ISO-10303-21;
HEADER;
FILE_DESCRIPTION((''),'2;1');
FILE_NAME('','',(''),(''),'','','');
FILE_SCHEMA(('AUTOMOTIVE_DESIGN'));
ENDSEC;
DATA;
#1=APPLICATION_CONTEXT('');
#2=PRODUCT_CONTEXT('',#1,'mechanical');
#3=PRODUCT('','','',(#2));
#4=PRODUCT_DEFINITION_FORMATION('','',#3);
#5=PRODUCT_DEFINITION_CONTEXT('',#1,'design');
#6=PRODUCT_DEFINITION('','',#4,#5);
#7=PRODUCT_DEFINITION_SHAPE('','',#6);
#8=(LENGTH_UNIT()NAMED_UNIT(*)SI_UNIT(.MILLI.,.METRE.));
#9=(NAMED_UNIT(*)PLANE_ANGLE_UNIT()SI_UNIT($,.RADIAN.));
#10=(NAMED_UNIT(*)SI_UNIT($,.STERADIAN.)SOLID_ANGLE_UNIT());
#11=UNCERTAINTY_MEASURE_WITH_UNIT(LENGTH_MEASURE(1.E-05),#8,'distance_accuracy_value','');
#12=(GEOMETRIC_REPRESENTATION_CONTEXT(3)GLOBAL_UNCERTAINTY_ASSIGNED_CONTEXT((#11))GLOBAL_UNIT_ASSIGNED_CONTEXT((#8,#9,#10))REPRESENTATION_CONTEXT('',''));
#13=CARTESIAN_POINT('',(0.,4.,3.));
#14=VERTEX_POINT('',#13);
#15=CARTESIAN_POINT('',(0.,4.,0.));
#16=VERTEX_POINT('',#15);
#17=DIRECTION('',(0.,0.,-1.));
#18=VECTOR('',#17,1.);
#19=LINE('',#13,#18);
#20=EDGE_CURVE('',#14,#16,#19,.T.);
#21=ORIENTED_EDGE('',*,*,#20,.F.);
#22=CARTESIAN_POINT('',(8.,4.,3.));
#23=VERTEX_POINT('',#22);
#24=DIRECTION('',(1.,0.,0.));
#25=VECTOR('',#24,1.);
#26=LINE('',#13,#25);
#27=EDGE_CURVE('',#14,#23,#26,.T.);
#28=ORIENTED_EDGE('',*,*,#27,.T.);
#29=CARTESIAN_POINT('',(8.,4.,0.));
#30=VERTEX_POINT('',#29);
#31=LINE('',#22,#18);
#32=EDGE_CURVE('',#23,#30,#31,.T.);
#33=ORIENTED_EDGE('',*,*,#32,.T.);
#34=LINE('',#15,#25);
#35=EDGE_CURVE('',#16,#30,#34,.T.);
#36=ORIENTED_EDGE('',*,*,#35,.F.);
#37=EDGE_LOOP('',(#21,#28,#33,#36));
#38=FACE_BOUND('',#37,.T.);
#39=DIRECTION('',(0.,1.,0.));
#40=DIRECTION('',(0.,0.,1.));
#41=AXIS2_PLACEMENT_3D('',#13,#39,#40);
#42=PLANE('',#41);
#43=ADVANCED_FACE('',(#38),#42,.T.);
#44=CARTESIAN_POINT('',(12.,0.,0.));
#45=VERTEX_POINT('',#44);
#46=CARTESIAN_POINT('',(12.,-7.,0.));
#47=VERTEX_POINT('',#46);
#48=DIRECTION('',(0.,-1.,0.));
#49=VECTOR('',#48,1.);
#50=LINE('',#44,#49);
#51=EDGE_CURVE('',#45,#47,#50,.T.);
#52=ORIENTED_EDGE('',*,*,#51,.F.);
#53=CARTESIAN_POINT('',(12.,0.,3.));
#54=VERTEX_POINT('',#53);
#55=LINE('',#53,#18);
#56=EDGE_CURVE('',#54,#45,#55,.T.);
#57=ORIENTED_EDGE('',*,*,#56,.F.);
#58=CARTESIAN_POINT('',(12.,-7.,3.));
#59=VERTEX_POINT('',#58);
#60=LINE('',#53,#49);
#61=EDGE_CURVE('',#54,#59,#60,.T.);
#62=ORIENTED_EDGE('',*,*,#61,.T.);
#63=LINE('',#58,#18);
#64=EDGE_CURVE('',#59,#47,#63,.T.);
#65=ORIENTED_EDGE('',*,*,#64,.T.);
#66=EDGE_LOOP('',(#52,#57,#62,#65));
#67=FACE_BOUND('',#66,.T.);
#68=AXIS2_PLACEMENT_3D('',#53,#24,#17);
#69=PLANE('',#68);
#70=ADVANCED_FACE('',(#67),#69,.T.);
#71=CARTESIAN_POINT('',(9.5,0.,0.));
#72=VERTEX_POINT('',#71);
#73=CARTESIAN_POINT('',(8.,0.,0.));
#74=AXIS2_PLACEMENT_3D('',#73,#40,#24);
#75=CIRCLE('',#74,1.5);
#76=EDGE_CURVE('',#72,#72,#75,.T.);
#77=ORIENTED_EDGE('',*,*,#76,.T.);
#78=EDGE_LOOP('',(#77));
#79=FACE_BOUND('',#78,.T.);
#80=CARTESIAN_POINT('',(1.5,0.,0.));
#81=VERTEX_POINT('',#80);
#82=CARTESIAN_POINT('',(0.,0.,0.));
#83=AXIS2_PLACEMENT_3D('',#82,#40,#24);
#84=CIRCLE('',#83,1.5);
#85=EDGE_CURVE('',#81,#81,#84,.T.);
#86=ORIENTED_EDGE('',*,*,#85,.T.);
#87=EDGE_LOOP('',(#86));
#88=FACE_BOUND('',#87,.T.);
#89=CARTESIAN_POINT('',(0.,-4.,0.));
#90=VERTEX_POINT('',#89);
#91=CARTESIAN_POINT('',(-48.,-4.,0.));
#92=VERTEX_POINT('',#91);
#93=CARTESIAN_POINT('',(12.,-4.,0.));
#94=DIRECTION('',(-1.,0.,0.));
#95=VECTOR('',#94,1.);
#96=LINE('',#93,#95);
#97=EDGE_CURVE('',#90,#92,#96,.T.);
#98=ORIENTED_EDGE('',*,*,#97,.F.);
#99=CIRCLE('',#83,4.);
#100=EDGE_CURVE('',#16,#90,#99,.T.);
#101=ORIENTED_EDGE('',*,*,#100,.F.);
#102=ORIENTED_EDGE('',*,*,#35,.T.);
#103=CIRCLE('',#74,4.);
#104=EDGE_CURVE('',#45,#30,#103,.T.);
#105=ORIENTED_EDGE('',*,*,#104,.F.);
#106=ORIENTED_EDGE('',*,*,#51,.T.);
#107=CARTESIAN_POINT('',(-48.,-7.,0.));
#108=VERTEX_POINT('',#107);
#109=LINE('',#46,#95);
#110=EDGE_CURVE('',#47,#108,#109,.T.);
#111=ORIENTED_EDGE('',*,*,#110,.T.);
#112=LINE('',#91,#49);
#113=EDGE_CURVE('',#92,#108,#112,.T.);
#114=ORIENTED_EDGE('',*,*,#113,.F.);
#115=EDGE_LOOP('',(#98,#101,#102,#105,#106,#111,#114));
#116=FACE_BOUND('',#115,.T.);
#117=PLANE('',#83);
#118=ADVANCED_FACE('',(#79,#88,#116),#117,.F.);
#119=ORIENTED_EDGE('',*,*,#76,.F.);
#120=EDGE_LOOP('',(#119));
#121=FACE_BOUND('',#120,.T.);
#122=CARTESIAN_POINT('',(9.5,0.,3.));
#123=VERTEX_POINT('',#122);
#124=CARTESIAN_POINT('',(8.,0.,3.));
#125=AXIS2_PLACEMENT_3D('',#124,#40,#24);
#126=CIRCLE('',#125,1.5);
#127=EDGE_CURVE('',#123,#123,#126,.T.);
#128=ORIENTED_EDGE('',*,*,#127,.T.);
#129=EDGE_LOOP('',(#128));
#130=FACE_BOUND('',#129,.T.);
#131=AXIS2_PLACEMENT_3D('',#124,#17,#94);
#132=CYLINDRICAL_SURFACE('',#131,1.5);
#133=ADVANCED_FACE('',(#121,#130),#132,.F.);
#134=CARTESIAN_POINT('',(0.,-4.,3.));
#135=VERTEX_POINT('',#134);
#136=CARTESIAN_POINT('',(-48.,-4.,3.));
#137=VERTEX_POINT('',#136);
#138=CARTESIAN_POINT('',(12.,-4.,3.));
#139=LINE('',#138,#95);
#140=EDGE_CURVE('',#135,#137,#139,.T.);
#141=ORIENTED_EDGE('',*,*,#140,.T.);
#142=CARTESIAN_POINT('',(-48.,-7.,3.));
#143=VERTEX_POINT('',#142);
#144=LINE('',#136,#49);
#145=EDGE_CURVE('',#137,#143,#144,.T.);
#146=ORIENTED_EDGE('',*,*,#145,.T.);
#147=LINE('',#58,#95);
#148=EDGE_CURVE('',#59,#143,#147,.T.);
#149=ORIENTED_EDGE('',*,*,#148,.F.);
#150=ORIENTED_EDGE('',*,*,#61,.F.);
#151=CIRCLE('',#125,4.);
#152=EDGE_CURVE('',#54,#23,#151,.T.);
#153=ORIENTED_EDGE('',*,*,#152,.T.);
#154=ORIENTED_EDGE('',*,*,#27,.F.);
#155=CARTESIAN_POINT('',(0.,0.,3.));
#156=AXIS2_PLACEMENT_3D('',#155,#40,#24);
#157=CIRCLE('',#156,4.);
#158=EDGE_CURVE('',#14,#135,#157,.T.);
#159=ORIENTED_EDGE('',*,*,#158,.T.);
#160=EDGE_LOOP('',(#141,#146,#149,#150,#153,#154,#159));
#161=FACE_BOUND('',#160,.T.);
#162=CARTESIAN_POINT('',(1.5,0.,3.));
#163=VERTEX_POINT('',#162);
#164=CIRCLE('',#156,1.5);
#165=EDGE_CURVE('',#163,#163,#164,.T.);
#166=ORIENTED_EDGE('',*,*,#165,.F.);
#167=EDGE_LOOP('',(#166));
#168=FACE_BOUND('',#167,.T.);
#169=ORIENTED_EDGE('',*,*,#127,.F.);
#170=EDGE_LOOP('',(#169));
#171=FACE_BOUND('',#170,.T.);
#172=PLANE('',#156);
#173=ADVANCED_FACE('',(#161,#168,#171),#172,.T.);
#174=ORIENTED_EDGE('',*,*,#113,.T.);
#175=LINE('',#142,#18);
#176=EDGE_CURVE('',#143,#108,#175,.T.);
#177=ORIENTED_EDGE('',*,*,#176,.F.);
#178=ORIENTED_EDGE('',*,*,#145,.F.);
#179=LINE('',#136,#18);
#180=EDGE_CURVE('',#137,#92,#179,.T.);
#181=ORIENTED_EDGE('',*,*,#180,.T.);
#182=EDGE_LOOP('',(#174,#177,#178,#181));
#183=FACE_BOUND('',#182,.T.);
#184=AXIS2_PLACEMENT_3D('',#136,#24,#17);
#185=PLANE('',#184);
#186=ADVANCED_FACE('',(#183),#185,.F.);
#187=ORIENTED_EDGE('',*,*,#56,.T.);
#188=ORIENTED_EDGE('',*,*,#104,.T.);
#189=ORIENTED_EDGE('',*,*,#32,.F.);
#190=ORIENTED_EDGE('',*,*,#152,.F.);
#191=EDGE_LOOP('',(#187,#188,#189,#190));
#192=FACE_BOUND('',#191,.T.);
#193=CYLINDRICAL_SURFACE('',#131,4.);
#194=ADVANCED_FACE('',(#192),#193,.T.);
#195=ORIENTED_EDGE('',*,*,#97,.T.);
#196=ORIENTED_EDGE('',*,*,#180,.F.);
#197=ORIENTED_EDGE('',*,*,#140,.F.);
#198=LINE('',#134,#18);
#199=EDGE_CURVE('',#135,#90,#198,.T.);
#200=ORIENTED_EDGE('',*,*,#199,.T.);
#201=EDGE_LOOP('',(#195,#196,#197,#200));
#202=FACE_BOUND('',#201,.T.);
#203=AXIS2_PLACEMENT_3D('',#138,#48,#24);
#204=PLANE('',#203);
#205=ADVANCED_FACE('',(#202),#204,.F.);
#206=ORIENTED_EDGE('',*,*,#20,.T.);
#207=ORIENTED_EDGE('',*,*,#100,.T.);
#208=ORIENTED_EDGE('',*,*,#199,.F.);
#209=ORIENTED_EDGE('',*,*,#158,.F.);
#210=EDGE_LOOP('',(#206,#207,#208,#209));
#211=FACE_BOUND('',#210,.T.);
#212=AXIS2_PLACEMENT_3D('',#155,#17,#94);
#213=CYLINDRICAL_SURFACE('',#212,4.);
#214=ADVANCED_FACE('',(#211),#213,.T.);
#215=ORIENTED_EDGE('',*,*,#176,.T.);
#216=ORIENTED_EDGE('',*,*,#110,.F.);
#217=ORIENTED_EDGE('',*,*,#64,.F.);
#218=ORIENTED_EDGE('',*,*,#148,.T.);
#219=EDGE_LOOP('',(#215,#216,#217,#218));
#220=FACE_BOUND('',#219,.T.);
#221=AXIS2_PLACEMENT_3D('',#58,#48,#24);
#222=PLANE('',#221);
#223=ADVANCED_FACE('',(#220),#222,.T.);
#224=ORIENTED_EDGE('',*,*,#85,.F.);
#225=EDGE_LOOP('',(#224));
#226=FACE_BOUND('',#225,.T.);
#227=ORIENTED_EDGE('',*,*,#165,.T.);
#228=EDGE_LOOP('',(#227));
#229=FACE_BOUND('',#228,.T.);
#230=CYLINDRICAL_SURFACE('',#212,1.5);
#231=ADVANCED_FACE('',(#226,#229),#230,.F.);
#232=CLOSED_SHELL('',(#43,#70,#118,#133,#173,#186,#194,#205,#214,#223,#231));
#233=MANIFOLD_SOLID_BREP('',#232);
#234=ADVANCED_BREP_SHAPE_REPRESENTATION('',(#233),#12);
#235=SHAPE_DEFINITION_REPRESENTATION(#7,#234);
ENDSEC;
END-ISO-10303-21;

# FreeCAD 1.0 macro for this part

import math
import FreeCAD as App
import Part
import Sketcher
from FreeCAD import Vector

doc = App.newDocument("Part")
body = doc.addObject("PartDesign::Body", "Body")

sketch1 = doc.addObject("Sketcher::SketchObject", "Sketch")
body.addObject(sketch1)
sketch1.AttachmentSupport = (doc.XY_Plane, [""])
sketch1.MapMode = "FlatFace"
sketch1.addGeometry([
    Part.LineSegment(Vector(0, -4, 0), Vector(-48, -4, 0)),
    Part.LineSegment(Vector(-48, -4, 0), Vector(-48, -7, 0)),
    Part.LineSegment(Vector(-48, -7, 0), Vector(12, -7, 0)),
    Part.LineSegment(Vector(12, -7, 0), Vector(12, 0, 0)),
    Part.ArcOfCircle(Part.Circle(Vector(8, 0, 0), Vector(0, 0, 1), 4), math.radians(0), math.radians(90)),
    Part.LineSegment(Vector(8, 4, 0), Vector(0, 4, 0)),
    Part.ArcOfCircle(Part.Circle(Vector(0, 0, 0), Vector(0, 0, 1), 4), math.radians(90), math.radians(270)),
    Part.Circle(Vector(0, 0, 0), Vector(0, 0, 1), 1.5),
    Part.Circle(Vector(8, 0, 0), Vector(0, 0, 1), 1.5),
], False)
sketch1.addConstraint([
    Sketcher.Constraint("Coincident", 0, 2, 1, 1),
    Sketcher.Constraint("Coincident", 1, 2, 2, 1),
    Sketcher.Constraint("Coincident", 2, 2, 3, 1),
    Sketcher.Constraint("Tangent", 3, 2, 4, 1),
    Sketcher.Constraint("Tangent", 4, 2, 5, 1),
    Sketcher.Constraint("Tangent", 5, 2, 6, 1),
    Sketcher.Constraint("Tangent", 6, 2, 0, 1),
    Sketcher.Constraint("Horizontal", 0),
    Sketcher.Constraint("Vertical", 1),
    Sketcher.Constraint("Horizontal", 2),
    Sketcher.Constraint("Vertical", 3),
    Sketcher.Constraint("Horizontal", 5),
    Sketcher.Constraint("Coincident", 6, 3, -1, 1),
    Sketcher.Constraint("Coincident", 7, 3, -1, 1),
    Sketcher.Constraint("Coincident", 8, 3, 4, 3),
    Sketcher.Constraint("Equal", 4, 6),
    Sketcher.Constraint("Equal", 7, 8),
    Sketcher.Constraint("Diameter", 7, 3.0),
    Sketcher.Constraint("Radius", 4, 4.0),
    Sketcher.Constraint("DistanceX", 0, 2, 0, 1, 48.0),
    Sketcher.Constraint("DistanceX", 2, 1, 2, 2, 60.0),
    Sketcher.Constraint("DistanceY", 1, 2, 1, 1, 3.0),
])
pad1 = doc.addObject("PartDesign::Pad", "Pad")
body.addObject(pad1)
pad1.Profile = sketch1
pad1.Length = 3

doc.recompute()
